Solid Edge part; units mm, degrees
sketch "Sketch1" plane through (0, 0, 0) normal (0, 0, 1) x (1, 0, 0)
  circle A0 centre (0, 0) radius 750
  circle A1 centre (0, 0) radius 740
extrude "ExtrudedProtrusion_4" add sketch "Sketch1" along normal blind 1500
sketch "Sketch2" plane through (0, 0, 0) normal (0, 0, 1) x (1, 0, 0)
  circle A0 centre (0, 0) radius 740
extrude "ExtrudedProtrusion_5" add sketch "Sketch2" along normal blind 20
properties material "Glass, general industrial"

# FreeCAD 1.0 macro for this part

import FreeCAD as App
import Part
import Sketcher
from FreeCAD import Vector

doc = App.newDocument("Part")
body = doc.addObject("PartDesign::Body", "Body")

sketch1 = doc.addObject("Sketcher::SketchObject", "Sketch")
body.addObject(sketch1)
sketch1.AttachmentSupport = (doc.XY_Plane, [""])
sketch1.MapMode = "FlatFace"
sketch1.addGeometry(Part.Circle(Vector(0, 0, 0), Vector(0, 0, 1), 750), False)
sketch1.addGeometry(Part.Circle(Vector(0, 0, 0), Vector(0, 0, 1), 740), False)
sketch1.addConstraint(Sketcher.Constraint("Coincident", 0, 3, -1, 1))
sketch1.addConstraint(Sketcher.Constraint("Coincident", 1, 3, -1, 1))
sketch1.addConstraint(Sketcher.Constraint("Diameter", 0, 1500.0))
sketch1.addConstraint(Sketcher.Constraint("Diameter", 1, 1480.0))
pad1 = doc.addObject("PartDesign::Pad", "Pad")
body.addObject(pad1)
pad1.Profile = sketch1
pad1.Length = 1500

sketch2 = doc.addObject("Sketcher::SketchObject", "Sketch001")
body.addObject(sketch2)
sketch2.AttachmentSupport = (doc.XY_Plane, [""])
sketch2.MapMode = "FlatFace"
sketch2.addGeometry(Part.Circle(Vector(0, 0, 0), Vector(0, 0, 1), 740), False)
sketch2.addConstraint(Sketcher.Constraint("Coincident", 0, 3, -1, 1))
sketch2.addConstraint(Sketcher.Constraint("Diameter", 0, 1480.0))
pad2 = doc.addObject("PartDesign::Pad", "Pad001")
body.addObject(pad2)
pad2.Profile = sketch2
pad2.Length = 20

doc.recompute()
